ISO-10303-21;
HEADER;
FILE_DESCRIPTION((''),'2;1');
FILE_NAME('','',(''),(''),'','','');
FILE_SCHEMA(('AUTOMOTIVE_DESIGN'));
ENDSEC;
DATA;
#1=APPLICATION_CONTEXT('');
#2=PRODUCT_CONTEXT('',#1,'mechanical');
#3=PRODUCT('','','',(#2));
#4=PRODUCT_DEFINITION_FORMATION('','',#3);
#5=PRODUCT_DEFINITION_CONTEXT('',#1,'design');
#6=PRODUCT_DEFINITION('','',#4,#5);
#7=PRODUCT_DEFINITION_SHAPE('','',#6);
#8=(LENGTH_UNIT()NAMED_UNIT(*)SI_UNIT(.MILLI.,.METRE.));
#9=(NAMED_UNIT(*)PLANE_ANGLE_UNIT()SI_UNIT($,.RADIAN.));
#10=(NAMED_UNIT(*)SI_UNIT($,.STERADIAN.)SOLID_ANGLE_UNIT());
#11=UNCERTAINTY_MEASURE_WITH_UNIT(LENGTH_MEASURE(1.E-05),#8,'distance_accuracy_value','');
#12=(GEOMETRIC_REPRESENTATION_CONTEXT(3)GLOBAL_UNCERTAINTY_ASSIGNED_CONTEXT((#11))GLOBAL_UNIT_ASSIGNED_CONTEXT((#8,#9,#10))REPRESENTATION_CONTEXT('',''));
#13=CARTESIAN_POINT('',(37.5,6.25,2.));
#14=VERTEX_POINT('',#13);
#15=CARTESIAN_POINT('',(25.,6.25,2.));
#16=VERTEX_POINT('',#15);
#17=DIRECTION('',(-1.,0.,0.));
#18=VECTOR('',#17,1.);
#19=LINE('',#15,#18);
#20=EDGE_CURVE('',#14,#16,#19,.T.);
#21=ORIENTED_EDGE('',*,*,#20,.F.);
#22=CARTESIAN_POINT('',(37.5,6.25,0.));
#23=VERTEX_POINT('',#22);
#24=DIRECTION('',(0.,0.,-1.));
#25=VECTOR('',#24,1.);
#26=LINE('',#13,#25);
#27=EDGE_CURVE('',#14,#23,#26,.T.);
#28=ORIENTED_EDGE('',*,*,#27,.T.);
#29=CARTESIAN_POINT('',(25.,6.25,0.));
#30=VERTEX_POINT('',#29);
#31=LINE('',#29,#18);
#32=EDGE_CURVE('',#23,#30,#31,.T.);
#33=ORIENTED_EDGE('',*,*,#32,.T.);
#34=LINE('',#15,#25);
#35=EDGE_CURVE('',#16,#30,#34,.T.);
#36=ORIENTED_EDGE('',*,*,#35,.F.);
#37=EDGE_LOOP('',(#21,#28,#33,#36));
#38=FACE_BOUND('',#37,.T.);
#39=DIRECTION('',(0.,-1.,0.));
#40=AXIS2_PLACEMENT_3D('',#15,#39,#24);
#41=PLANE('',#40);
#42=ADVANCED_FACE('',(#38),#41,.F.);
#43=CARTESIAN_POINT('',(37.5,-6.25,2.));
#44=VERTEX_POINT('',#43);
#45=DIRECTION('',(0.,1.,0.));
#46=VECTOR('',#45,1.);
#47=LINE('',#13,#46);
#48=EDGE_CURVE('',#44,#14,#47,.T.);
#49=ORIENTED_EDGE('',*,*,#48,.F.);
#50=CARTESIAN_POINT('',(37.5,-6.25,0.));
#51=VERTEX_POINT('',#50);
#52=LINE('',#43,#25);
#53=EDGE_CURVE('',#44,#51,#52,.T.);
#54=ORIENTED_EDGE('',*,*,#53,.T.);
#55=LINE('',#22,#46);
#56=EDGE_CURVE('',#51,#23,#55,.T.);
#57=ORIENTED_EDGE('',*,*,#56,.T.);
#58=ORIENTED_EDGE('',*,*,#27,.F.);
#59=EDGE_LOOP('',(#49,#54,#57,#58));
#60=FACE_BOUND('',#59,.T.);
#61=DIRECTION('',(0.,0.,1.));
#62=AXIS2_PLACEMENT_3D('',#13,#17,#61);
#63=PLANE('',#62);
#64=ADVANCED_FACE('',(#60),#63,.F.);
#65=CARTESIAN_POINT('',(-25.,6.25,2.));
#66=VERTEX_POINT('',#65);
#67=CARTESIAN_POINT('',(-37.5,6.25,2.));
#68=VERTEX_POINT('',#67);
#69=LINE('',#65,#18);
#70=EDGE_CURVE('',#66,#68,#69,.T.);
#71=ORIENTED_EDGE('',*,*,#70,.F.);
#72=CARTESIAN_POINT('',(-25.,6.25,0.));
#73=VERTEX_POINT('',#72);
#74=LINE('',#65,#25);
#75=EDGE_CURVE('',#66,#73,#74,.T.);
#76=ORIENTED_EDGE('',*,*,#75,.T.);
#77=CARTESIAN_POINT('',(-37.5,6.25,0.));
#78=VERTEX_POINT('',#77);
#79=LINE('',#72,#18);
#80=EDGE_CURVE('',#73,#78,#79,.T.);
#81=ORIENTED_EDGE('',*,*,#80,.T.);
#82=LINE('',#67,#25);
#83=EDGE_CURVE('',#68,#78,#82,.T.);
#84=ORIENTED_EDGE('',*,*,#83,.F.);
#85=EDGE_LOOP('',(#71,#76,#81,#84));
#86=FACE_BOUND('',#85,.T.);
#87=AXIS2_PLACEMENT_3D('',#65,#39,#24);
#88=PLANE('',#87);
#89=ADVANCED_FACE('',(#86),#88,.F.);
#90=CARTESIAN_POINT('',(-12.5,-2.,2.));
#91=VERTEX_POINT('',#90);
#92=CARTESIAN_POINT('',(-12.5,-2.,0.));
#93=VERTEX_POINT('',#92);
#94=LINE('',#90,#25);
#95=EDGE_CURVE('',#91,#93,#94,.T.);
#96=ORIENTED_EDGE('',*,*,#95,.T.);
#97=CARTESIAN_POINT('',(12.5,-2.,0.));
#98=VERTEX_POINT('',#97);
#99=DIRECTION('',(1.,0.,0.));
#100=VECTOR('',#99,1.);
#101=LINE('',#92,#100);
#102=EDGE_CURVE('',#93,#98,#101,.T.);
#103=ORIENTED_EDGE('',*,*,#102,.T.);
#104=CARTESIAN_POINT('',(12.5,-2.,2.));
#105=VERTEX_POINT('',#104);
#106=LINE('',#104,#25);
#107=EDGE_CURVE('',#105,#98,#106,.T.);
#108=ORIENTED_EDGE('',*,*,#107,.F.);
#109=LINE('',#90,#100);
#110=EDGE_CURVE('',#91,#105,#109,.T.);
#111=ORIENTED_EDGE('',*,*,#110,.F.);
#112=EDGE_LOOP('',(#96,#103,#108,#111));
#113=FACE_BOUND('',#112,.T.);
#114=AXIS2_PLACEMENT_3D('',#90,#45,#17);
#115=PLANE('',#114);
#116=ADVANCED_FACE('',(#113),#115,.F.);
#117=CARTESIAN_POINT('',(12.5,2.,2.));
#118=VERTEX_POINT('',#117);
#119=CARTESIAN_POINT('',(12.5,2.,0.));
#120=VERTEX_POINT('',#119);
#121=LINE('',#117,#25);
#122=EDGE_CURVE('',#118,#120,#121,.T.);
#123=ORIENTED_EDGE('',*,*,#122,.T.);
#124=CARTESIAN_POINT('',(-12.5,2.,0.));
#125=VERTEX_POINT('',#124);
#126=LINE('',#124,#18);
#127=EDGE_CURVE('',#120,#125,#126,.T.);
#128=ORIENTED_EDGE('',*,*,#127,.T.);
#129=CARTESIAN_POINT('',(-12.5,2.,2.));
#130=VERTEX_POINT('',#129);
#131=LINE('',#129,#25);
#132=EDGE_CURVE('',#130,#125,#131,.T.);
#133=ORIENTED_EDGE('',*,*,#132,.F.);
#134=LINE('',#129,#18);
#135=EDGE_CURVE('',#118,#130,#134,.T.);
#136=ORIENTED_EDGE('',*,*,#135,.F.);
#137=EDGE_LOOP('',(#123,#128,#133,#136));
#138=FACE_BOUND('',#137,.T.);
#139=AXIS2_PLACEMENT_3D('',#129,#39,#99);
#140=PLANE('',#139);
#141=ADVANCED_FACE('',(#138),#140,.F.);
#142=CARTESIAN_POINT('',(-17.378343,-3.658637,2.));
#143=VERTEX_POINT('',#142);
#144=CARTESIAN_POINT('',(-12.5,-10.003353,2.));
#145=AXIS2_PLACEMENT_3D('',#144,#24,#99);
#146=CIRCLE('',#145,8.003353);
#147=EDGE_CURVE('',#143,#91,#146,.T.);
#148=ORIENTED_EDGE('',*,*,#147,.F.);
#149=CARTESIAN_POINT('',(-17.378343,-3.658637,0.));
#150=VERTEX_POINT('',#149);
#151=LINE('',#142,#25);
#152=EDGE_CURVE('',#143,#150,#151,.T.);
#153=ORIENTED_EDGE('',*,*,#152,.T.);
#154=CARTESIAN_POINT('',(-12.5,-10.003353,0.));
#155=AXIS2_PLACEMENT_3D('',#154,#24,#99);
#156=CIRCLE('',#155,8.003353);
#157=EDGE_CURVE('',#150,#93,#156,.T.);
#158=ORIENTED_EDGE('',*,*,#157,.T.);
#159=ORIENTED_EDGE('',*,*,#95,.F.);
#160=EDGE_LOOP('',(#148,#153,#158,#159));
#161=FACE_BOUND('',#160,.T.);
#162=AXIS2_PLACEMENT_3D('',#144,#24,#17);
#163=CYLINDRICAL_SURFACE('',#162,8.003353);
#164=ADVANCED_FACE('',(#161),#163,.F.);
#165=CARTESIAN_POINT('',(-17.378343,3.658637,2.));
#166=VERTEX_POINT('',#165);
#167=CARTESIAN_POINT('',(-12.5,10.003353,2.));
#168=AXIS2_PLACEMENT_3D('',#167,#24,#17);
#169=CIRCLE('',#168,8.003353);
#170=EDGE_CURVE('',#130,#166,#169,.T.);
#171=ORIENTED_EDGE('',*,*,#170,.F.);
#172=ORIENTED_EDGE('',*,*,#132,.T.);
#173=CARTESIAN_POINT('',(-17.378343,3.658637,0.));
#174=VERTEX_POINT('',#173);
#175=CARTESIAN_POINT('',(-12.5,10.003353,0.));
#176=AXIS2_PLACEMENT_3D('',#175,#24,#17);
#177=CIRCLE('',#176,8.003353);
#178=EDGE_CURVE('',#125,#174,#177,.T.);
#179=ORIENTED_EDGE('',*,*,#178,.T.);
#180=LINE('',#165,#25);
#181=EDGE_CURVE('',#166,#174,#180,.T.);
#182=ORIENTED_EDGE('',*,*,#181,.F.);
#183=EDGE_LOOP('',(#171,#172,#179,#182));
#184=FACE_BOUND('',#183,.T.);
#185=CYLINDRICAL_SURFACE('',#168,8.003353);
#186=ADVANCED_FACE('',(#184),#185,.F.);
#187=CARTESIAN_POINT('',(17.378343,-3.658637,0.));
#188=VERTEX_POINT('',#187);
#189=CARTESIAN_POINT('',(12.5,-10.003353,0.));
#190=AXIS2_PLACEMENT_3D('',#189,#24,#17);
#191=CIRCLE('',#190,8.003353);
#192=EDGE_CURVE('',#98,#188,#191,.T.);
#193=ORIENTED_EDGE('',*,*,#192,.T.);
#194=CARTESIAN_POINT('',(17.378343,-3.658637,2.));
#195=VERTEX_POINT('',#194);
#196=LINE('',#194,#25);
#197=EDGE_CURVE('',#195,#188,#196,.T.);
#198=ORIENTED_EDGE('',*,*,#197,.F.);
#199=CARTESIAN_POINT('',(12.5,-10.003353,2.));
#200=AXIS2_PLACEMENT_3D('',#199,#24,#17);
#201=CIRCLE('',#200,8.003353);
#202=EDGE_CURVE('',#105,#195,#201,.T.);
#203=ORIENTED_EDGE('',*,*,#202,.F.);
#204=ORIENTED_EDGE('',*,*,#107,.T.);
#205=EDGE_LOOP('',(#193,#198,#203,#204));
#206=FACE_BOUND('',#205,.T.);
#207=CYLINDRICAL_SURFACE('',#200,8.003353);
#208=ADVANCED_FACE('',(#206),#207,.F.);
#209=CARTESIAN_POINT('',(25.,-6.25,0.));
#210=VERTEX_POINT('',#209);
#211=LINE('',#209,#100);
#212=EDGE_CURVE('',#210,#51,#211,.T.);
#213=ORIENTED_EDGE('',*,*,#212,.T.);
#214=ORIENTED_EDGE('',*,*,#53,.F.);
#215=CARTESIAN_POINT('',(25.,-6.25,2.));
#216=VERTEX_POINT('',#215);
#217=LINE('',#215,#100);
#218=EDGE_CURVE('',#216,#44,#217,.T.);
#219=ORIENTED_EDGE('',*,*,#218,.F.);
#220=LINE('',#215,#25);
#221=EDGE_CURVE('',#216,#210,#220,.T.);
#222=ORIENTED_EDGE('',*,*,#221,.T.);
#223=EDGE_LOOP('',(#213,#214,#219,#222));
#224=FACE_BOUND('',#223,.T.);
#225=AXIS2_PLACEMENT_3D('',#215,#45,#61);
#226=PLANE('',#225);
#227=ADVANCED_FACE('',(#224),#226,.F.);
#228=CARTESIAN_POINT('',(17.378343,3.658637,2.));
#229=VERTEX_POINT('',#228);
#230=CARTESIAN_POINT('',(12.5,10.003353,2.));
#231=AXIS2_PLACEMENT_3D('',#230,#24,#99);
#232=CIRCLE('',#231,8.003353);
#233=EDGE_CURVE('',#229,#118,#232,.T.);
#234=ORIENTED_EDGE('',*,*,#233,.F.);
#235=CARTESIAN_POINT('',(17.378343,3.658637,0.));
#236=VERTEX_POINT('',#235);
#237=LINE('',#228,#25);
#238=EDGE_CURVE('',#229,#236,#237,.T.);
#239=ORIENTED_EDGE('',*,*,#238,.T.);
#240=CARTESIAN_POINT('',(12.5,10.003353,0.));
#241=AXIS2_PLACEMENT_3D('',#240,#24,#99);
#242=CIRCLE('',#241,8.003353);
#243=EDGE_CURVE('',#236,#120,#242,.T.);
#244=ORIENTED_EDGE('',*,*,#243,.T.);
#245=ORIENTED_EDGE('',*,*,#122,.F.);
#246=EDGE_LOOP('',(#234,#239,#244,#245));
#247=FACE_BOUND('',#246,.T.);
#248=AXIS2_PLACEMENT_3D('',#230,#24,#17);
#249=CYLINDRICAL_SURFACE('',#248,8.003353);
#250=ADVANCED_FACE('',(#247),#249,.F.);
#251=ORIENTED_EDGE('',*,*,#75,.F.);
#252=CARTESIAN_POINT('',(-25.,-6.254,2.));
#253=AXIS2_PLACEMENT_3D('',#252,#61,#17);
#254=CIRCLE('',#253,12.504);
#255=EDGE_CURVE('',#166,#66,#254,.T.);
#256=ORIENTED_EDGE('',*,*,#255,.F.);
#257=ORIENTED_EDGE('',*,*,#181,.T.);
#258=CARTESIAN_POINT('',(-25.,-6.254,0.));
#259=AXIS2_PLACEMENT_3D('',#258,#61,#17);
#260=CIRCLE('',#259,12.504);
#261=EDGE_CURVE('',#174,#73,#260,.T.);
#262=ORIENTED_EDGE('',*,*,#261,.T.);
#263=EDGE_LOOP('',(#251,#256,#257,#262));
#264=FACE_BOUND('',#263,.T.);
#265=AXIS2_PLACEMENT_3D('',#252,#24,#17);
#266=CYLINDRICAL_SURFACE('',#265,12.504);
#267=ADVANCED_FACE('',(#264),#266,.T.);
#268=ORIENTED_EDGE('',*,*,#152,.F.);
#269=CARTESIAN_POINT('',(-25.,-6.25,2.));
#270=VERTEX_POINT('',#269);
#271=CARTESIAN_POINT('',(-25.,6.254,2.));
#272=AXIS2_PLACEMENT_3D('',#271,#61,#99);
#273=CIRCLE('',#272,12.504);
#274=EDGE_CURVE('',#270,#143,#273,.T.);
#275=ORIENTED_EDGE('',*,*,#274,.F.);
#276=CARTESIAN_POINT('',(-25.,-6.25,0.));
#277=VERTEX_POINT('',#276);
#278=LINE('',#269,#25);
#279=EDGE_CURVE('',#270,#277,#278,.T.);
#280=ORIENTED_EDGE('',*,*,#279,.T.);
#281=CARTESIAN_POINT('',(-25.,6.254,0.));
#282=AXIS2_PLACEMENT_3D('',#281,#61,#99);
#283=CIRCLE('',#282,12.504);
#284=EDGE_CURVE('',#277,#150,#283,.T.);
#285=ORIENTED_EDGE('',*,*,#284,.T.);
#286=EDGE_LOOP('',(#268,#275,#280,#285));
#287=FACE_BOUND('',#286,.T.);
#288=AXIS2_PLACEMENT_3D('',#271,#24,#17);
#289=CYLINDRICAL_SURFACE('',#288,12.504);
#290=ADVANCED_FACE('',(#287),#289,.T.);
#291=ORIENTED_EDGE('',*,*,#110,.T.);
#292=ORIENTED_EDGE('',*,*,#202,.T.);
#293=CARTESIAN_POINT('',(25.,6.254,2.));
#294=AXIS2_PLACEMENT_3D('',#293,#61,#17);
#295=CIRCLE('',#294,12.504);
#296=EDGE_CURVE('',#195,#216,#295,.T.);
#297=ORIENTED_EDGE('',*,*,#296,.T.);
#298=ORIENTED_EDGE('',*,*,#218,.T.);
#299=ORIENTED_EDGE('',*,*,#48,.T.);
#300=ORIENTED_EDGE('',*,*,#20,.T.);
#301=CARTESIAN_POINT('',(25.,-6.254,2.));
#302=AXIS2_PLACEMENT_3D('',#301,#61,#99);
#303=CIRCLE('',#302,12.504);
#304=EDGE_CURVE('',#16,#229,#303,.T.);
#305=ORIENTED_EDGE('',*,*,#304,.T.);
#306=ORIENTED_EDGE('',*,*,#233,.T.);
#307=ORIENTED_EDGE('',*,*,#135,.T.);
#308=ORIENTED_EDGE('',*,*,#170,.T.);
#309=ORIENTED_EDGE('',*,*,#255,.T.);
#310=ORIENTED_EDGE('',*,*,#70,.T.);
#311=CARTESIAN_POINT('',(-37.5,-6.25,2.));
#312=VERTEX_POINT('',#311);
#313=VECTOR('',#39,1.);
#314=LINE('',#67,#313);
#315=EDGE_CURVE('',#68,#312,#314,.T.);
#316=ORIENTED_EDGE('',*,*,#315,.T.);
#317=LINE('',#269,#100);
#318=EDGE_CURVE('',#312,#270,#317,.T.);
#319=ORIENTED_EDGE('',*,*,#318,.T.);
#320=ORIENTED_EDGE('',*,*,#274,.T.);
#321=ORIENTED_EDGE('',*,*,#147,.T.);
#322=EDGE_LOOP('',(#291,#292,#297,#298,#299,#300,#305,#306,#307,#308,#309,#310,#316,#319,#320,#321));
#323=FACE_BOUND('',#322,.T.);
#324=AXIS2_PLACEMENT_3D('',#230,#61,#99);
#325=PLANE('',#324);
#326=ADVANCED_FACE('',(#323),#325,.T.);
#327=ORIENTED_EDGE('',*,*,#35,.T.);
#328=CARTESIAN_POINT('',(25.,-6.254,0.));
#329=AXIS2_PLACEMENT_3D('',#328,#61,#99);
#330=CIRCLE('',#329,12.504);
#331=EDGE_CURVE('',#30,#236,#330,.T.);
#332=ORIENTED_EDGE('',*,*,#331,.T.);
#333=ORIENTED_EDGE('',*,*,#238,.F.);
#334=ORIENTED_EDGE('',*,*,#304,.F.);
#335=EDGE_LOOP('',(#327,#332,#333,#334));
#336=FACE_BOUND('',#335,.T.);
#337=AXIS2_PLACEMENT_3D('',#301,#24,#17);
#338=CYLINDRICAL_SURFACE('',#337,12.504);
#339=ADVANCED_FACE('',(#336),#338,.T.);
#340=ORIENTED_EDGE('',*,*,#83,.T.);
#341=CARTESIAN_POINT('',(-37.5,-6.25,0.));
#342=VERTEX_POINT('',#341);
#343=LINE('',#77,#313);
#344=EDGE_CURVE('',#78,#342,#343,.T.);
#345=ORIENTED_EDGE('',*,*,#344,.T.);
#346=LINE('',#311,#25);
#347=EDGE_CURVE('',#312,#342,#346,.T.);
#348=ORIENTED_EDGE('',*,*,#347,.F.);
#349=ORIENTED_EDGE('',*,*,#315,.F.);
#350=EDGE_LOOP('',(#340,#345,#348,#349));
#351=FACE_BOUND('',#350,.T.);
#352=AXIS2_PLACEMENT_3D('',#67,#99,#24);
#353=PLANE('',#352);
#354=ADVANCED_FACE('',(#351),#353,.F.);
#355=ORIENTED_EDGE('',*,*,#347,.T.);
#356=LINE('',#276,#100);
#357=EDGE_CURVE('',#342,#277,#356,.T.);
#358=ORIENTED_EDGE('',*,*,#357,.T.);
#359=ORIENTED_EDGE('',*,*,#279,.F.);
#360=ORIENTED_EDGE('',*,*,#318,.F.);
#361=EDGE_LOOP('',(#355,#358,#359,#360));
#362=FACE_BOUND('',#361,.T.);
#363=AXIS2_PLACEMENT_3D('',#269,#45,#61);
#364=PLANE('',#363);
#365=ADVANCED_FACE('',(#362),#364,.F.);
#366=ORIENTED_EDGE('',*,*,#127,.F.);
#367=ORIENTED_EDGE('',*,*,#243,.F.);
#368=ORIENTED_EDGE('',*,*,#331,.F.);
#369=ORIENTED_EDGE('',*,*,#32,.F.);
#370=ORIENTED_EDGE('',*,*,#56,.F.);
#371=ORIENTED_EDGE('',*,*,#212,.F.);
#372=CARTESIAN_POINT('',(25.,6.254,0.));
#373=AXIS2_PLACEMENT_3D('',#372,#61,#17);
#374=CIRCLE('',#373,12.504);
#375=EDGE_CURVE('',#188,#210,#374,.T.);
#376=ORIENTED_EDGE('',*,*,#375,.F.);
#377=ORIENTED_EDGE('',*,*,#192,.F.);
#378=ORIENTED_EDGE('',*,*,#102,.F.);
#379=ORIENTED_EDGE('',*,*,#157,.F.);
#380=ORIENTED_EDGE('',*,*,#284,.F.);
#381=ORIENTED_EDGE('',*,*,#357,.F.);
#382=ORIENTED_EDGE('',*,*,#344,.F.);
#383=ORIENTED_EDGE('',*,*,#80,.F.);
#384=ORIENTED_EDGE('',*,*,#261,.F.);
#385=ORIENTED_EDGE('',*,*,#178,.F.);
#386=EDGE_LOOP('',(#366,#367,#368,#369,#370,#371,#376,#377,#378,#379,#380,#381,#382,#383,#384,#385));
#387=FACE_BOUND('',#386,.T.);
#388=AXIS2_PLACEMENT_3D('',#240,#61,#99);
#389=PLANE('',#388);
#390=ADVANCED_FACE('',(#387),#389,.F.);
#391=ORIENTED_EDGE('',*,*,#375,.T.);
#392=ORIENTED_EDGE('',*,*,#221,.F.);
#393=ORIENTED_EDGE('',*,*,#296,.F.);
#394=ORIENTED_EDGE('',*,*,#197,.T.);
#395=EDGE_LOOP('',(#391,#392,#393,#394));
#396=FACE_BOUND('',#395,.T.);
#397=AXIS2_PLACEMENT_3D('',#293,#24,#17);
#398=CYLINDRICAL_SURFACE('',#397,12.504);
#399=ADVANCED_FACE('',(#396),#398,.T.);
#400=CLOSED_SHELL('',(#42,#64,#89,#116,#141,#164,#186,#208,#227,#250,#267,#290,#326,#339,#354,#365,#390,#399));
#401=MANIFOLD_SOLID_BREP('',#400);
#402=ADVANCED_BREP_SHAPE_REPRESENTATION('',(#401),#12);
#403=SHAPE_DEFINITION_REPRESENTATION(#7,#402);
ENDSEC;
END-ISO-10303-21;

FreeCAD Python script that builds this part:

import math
import FreeCAD as App
import Part
import Sketcher
from FreeCAD import Vector
Q = App.Units.Quantity

doc = App.newDocument("Part")
params = doc.addObject("Spreadsheet::Sheet", "Params")
for row, (alias, value) in enumerate([
    ("sketch1_width", "25 mm"),
    ("sketch1_width2", "12.5 mm"),
    ("pad1_length", "2 mm"),
], start=1):
    params.set(f"A{row}", alias)
    params.set(f"B{row}", "=" + value)
    params.setAlias(f"B{row}", alias)

body = doc.addObject("PartDesign::Body", "Body")

sketch1 = doc.addObject("Sketcher::SketchObject", "Sketch")
body.addObject(sketch1)
sketch1.AttachmentSupport = (doc.XY_Plane, [""])
sketch1.MapMode = "FlatFace"
sketch1.addGeometry([
    Part.LineSegment(Vector(12, 2, 0), Vector(-12, 2, 0)),
    Part.ArcOfCircle(Part.Circle(Vector(-13, 10, 0), Vector(0, 0, 1), 8), math.radians(-128), math.radians(-90)),
    Part.ArcOfCircle(Part.Circle(Vector(-25, -6, 0), Vector(0, 0, 1), 13), math.radians(52), math.radians(90)),
    Part.LineSegment(Vector(-25, 6, 0), Vector(-38, 6, 0)),
    Part.LineSegment(Vector(-38, 6, 0), Vector(-38, -6, 0)),
    Part.LineSegment(Vector(-38, -6, 0), Vector(-25, -6, 0)),
    Part.ArcOfCircle(Part.Circle(Vector(-25, 6, 0), Vector(0, 0, 1), 13), math.radians(-90), math.radians(-52)),
    Part.ArcOfCircle(Part.Circle(Vector(-13, -10, 0), Vector(0, 0, 1), 8), math.radians(90), math.radians(128)),
    Part.LineSegment(Vector(-12, -2, 0), Vector(12, -2, 0)),
    Part.ArcOfCircle(Part.Circle(Vector(13, -10, 0), Vector(0, 0, 1), 8), math.radians(52), math.radians(90)),
    Part.ArcOfCircle(Part.Circle(Vector(25, 6, 0), Vector(0, 0, 1), 13), math.radians(-128), math.radians(-90)),
    Part.LineSegment(Vector(25, -6, 0), Vector(38, -6, 0)),
    Part.LineSegment(Vector(38, -6, 0), Vector(38, 6, 0)),
    Part.LineSegment(Vector(38, 6, 0), Vector(25, 6, 0)),
    Part.ArcOfCircle(Part.Circle(Vector(25, -6, 0), Vector(0, 0, 1), 13), math.radians(90), math.radians(128)),
    Part.ArcOfCircle(Part.Circle(Vector(13, 10, 0), Vector(0, 0, 1), 8), math.radians(-90), math.radians(-52)),
], False)
sketch1.addConstraint([
    Sketcher.Constraint("Tangent", 0, 2, 1, 2),
    Sketcher.Constraint("Tangent", 1, 1, 2, 1),
    Sketcher.Constraint("Tangent", 2, 2, 3, 1),
    Sketcher.Constraint("Coincident", 3, 2, 4, 1),
    Sketcher.Constraint("Coincident", 4, 2, 5, 1),
    Sketcher.Constraint("Tangent", 5, 2, 6, 1),
    Sketcher.Constraint("Tangent", 6, 2, 7, 2),
    Sketcher.Constraint("Tangent", 7, 1, 8, 1),
    Sketcher.Constraint("Tangent", 8, 2, 9, 2),
    Sketcher.Constraint("Tangent", 9, 1, 10, 1),
    Sketcher.Constraint("Tangent", 10, 2, 11, 1),
    Sketcher.Constraint("Coincident", 11, 2, 12, 1),
    Sketcher.Constraint("Coincident", 12, 2, 13, 1),
    Sketcher.Constraint("Tangent", 13, 2, 14, 1),
    Sketcher.Constraint("Tangent", 14, 2, 15, 2),
    Sketcher.Constraint("Tangent", 15, 1, 0, 1),
    Sketcher.Constraint("Horizontal", 0),
    Sketcher.Constraint("Horizontal", 3),
    Sketcher.Constraint("Vertical", 4),
    Sketcher.Constraint("Horizontal", 5),
    Sketcher.Constraint("Horizontal", 8),
    Sketcher.Constraint("Horizontal", 11),
    Sketcher.Constraint("Vertical", 12),
    Sketcher.Constraint("Horizontal", 13),
    Sketcher.Constraint("Equal", 2, 6),
    Sketcher.Constraint("Equal", 1, 7),
    Sketcher.Constraint("Equal", 7, 9),
    Sketcher.Constraint("Equal", 6, 10),
    Sketcher.Constraint("Equal", 10, 14),
    Sketcher.Constraint("Equal", 9, 15),
    Sketcher.Constraint("Symmetric", 1, 3, 9, 3, -1, 1),
    Sketcher.Constraint("Symmetric", 6, 3, 14, 3, -1, 1),
    Sketcher.Constraint("Symmetric", 3, 2, 11, 2, -1, 1),
    Sketcher.Constraint("Symmetric", 6, 3, 10, 3, -2),
    Sketcher.Constraint("Equal", 13, 4),
    Sketcher.Constraint("DistanceX", 0, 2, 0, 1, Q("25 mm")),
    Sketcher.Constraint("DistanceX", 3, 2, 3, 1, Q("12.5 mm")),
    Sketcher.Constraint("DistanceX", 2, 3, -1, 1, Q("25 mm")),
    Sketcher.Constraint("DistanceY", -1, 1, 0, 2, Q("2 mm")),
    Sketcher.Constraint("Radius", 2, Q("12.504 mm")),
])
sketch1.setExpression("Constraints[35]", "Params.sketch1_width")
sketch1.setExpression("Constraints[36]", "Params.sketch1_width2")
pad1 = doc.addObject("PartDesign::Pad", "Pad")
body.addObject(pad1)
pad1.Profile = sketch1
pad1.setExpression("Length", "Params.pad1_length")

doc.recompute()
